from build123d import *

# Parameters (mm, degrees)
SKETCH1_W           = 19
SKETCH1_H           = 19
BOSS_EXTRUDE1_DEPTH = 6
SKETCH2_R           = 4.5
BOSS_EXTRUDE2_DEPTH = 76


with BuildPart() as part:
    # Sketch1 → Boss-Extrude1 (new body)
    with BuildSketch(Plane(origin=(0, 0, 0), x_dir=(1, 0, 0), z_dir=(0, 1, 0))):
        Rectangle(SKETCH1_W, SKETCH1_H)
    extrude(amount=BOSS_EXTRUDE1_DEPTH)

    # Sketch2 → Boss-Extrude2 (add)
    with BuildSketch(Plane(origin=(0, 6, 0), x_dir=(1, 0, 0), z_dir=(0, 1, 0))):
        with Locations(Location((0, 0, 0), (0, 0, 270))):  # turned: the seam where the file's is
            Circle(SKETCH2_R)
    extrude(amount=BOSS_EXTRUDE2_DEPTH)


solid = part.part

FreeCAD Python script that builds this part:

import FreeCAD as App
import Part
import Sketcher

V = App.Vector


def add_polygon(sketch, points):
    """Adds a closed chain of lines whose ends are joined by coincident constraints."""
    first, n = sketch.GeometryCount, len(points)
    for a, b in zip(points, points[1:] + points[:1]):
        sketch.addGeometry(Part.LineSegment(App.Vector(*a, 0), App.Vector(*b, 0)), False)
    for i in range(n):
        sketch.addConstraint(Sketcher.Constraint("Coincident", first + i, 2, first + (i + 1) % n, 1))

doc = App.newDocument("Part")
body = doc.addObject("PartDesign::Body", "Body")

sketch1 = body.newObject("Sketcher::SketchObject", "Sketch")
sketch1.AttachmentSupport = (doc.getObject("XZ_Plane"), [""])
sketch1.MapMode = "FlatFace"
add_polygon(sketch1, [(-9.5, -9.5), (-9.5, 9.5), (9.5, 9.5), (9.5, -9.5)])
sketch1.addConstraint([
    Sketcher.Constraint("Vertical", 0),
    Sketcher.Constraint("Horizontal", 1),
    Sketcher.Constraint("Vertical", 2),
    Sketcher.Constraint("Horizontal", 3),
    Sketcher.Constraint("Symmetric", 0, 2, 2, 2, -1, 1),
    Sketcher.Constraint("Equal", 3, 0),
    Sketcher.Constraint("DistanceX", 1, 1, 1, 2, 19.0),
])
pad1 = body.newObject("PartDesign::Pad", "Pad")
pad1.Profile = sketch1
pad1.Length = 6
pad1.Reversed = True

sketch2 = body.newObject("Sketcher::SketchObject", "Sketch001")
sketch2.AttachmentSupport = (doc.getObject("XZ_Plane"), [""])
sketch2.MapMode = "FlatFace"
sketch2.AttachmentOffset = App.Placement(V(0, 0, -6), App.Rotation())
sketch2.addGeometry(Part.Circle(V(0, 0, 0), V(0, 0, 1), 4.5), False)
sketch2.addConstraint([
    Sketcher.Constraint("Coincident", 0, 3, -1, 1),
    Sketcher.Constraint("Diameter", 0, 9.0),
])
pad2 = body.newObject("PartDesign::Pad", "Pad001")
pad2.Profile = sketch2
pad2.Length = 76
pad2.Reversed = True

doc.recompute()
